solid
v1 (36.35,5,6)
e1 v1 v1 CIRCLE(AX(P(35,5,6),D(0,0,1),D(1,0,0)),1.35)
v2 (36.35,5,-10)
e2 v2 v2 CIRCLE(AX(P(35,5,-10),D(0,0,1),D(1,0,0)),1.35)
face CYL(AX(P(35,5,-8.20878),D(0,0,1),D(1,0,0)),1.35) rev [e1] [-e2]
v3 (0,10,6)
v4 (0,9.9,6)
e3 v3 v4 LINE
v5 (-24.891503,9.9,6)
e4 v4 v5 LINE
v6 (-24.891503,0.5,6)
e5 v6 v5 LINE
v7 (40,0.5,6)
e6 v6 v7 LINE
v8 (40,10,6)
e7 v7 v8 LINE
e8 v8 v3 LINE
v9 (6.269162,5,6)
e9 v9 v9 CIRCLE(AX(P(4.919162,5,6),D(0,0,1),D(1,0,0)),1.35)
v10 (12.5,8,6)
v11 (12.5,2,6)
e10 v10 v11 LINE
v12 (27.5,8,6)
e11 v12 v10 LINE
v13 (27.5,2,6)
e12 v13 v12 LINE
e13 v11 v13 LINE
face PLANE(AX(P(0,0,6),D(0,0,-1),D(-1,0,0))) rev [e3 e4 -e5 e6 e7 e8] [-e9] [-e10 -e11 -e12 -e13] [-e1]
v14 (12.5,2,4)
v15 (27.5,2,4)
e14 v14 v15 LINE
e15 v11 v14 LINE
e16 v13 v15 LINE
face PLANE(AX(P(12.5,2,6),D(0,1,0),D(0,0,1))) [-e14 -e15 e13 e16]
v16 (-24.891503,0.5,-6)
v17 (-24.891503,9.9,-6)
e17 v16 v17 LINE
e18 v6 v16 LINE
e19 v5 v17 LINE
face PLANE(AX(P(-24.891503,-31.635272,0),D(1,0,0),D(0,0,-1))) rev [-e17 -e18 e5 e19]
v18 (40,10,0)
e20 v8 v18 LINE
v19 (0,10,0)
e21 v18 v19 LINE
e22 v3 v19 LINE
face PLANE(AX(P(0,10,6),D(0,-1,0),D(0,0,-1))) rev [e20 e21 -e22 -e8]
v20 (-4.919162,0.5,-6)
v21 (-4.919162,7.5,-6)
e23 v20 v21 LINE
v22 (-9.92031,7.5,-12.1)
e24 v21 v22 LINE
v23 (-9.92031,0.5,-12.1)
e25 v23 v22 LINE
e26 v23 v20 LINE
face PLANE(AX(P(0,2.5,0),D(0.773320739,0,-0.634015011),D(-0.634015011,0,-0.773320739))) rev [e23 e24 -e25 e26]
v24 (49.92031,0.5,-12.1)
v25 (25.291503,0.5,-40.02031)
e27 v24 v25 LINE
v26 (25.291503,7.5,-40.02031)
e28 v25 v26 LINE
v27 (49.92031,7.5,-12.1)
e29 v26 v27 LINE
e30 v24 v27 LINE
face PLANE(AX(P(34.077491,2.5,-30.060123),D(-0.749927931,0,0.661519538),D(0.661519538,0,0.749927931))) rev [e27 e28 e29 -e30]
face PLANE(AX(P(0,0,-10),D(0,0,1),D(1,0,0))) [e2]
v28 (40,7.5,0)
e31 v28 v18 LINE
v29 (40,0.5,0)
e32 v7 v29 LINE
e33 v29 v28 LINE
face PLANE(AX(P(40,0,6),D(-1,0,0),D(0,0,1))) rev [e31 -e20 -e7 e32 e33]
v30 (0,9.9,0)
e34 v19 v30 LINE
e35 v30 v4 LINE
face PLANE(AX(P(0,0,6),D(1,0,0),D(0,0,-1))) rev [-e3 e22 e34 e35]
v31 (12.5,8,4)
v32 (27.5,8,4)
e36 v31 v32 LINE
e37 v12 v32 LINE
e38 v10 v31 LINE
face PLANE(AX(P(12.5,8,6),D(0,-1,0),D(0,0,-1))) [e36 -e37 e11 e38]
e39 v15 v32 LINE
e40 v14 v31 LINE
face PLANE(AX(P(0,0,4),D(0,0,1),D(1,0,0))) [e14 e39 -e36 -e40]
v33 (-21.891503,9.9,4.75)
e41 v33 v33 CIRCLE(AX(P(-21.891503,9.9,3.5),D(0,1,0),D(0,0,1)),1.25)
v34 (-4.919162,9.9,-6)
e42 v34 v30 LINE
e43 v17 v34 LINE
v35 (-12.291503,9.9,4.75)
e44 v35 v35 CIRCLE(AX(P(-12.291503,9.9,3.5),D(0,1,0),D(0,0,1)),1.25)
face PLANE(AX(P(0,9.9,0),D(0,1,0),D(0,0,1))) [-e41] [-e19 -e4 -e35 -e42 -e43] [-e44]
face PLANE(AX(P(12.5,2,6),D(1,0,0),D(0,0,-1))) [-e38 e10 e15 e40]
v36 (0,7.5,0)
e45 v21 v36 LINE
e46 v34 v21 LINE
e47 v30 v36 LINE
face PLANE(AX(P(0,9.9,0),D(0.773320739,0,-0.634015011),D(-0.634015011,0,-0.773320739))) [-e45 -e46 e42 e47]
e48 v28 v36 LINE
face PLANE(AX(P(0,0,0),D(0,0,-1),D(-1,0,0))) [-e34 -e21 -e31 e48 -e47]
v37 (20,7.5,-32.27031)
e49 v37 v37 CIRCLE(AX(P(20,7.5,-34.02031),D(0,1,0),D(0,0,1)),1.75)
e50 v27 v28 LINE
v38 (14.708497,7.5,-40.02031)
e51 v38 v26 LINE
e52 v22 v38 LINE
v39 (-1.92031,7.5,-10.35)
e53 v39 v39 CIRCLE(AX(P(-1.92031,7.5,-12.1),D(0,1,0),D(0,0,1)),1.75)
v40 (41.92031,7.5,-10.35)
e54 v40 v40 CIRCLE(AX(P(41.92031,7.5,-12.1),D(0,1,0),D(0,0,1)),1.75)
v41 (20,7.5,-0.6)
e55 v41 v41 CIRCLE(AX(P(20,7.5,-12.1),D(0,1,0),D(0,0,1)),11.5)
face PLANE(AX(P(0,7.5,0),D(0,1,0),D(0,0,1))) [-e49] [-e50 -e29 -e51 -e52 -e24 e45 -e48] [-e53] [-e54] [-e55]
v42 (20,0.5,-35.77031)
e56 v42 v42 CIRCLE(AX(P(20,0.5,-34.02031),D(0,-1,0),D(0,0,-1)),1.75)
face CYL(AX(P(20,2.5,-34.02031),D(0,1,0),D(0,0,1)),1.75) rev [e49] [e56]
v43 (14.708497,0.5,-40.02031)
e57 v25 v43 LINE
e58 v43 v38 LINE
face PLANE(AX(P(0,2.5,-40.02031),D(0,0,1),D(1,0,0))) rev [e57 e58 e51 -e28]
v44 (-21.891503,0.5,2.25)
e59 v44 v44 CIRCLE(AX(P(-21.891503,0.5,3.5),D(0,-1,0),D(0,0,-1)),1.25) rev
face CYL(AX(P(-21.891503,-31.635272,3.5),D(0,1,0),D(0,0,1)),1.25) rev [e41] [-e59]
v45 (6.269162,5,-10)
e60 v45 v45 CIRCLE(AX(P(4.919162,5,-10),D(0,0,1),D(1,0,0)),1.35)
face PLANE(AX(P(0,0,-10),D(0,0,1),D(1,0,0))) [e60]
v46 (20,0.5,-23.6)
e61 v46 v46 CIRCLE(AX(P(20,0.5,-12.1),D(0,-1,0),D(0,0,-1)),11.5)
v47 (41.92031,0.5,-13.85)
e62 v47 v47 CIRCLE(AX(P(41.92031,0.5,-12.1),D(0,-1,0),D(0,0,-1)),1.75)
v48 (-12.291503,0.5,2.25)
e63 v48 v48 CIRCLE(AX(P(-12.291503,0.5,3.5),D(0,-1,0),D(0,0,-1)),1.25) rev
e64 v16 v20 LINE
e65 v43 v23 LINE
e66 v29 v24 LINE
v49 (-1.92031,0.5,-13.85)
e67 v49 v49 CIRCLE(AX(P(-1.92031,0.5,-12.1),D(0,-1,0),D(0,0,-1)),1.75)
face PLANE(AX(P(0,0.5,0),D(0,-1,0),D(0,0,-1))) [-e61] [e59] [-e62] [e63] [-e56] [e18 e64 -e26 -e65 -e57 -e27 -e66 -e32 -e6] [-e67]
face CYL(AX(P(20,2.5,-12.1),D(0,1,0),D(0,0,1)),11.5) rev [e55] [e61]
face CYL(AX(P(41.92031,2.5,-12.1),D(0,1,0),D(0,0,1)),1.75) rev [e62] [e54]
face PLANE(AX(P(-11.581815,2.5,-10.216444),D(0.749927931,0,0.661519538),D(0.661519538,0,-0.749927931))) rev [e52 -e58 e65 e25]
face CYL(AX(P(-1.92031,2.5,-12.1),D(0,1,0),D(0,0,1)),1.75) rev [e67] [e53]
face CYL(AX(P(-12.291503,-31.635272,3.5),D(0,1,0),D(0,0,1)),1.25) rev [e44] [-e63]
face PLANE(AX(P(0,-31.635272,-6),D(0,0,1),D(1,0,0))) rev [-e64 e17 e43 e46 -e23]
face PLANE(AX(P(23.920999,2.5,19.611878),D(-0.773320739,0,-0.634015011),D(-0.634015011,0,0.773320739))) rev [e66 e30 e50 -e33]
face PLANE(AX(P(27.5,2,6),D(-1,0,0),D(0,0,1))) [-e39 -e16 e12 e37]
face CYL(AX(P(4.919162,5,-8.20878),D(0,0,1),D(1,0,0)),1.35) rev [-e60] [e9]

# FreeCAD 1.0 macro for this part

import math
import FreeCAD as App
import Part
import Sketcher

V = App.Vector


def add_polygon(sketch, points):
    """Adds a closed chain of lines whose ends are joined by coincident constraints."""
    first, n = sketch.GeometryCount, len(points)
    for a, b in zip(points, points[1:] + points[:1]):
        sketch.addGeometry(Part.LineSegment(App.Vector(*a, 0), App.Vector(*b, 0)), False)
    for i in range(n):
        sketch.addConstraint(Sketcher.Constraint("Coincident", first + i, 2, first + (i + 1) % n, 1))

doc = App.newDocument("Part")
body = doc.addObject("PartDesign::Body", "Body")

# Sketch on XY plane
sketch1 = doc.addObject("Sketcher::SketchObject", "Sketch")
body.addObject(sketch1)
sketch1.AttachmentSupport = (doc.XY_Plane, [""])
sketch1.MapMode = "FlatFace"
add_polygon(sketch1, [(0, 10), (0, 0), (40, 0), (40, 10)])  # lines 0-3
sketch1.addGeometry(Part.Circle(V(5, 5, 0), V(0, 0, 1), 1.5), False)  # 4
add_polygon(sketch1, [(27.5, 2), (12.5, 2), (12.5, 8), (27.5, 8)])  # lines 5-8
sketch1.addGeometry(Part.Circle(V(35, 5, 0), V(0, 0, 1), 1.5), False)  # 9
sketch1.addConstraint(Sketcher.Constraint("Vertical", 0))
sketch1.addConstraint(Sketcher.Constraint("Horizontal", 1))
sketch1.addConstraint(Sketcher.Constraint("Vertical", 2))
sketch1.addConstraint(Sketcher.Constraint("Horizontal", 3))
sketch1.addConstraint(Sketcher.Constraint("Horizontal", 5))
sketch1.addConstraint(Sketcher.Constraint("Vertical", 6))
sketch1.addConstraint(Sketcher.Constraint("Horizontal", 7))
sketch1.addConstraint(Sketcher.Constraint("Vertical", 8))
sketch1.addConstraint(Sketcher.Constraint("Coincident", 0, 2, -1, 1))
sketch1.addConstraint(Sketcher.Constraint("Equal", 4, 9))
sketch1.addConstraint(Sketcher.Constraint("Horizontal", 4, 3, 9, 3))
sketch1.addConstraint(Sketcher.Constraint("Diameter", 4, 3.0))
sketch1.addConstraint(Sketcher.Constraint("DistanceX", 1, 1, 1, 2, 40.0))
sketch1.addConstraint(Sketcher.Constraint("DistanceX", 5, 2, 5, 1, 15.0))
sketch1.addConstraint(Sketcher.Constraint("DistanceY", 0, 2, 0, 1, 10.0))
sketch1.addConstraint(Sketcher.Constraint("DistanceY", 6, 1, 6, 2, 6.0))
sketch1.addConstraint(Sketcher.Constraint("DistanceX", -1, 1, 4, 3, 5.0))
sketch1.addConstraint(Sketcher.Constraint("DistanceY", -1, 1, 4, 3, 5.0))
sketch1.addConstraint(Sketcher.Constraint("DistanceX", -1, 1, 9, 3, 35.0))
sketch1.addConstraint(Sketcher.Constraint("DistanceY", -1, 1, 5, 2, 2.0))
sketch1.addConstraint(Sketcher.Constraint("DistanceX", -1, 1, 5, 2, 12.5))
pad1 = doc.addObject("PartDesign::Pad", "Pad")
body.addObject(pad1)
pad1.Profile = sketch1
pad1.Length = 6

# Sketch on XY plane
sketch2 = doc.addObject("Sketcher::SketchObject", "Sketch001")
body.addObject(sketch2)
sketch2.AttachmentSupport = (doc.XY_Plane, [""])
sketch2.MapMode = "FlatFace"
add_polygon(sketch2, [(12.5, 8), (12.5, 2), (27.5, 2), (27.5, 8)])  # lines 0-3
sketch2.addConstraint(Sketcher.Constraint("Vertical", 0))
sketch2.addConstraint(Sketcher.Constraint("Horizontal", 1))
sketch2.addConstraint(Sketcher.Constraint("Vertical", 2))
sketch2.addConstraint(Sketcher.Constraint("Horizontal", 3))
sketch2.addConstraint(Sketcher.Constraint("DistanceX", 1, 1, 1, 2, 15.0))
sketch2.addConstraint(Sketcher.Constraint("DistanceY", 0, 2, 0, 1, 6.0))
sketch2.addConstraint(Sketcher.Constraint("DistanceY", -1, 1, 0, 2, 2.0))
sketch2.addConstraint(Sketcher.Constraint("DistanceX", -1, 1, 0, 2, 12.5))
pad2 = doc.addObject("PartDesign::Pad", "Pad001")
body.addObject(pad2)
pad2.Profile = sketch2
pad2.Length = 4

# Sketch on XZ plane
sketch3 = doc.addObject("Sketcher::SketchObject", "Sketch002")
body.addObject(sketch3)
sketch3.AttachmentSupport = (doc.XZ_Plane, [""])
sketch3.MapMode = "FlatFace"
sketch3.AttachmentOffset = App.Placement(V(0, 0, -7.5), App.Rotation())
add_polygon(sketch3, [(0, 0), (40, 0), (49.92031, -12.1), (25.291503, -40.02031), (14.708497, -40.02031), (-9.92031, -12.1)])  # lines 0-5
sketch3.addGeometry(Part.Circle(V(-1.92031, -12.1, 0), V(0, 0, 1), 1.75), False)  # 6
sketch3.addGeometry(Part.Circle(V(41.92031, -12.1, 0), V(0, 0, 1), 1.75), False)  # 7
sketch3.addGeometry(Part.Circle(V(20, -34.02031, 0), V(0, 0, 1), 1.75), False)  # 8
sketch3.addGeometry(Part.Circle(V(20, -12.1, 0), V(0, 0, 1), 11.5), False)  # 9
sketch3.addConstraint(Sketcher.Constraint("Horizontal", 0))
sketch3.addConstraint(Sketcher.Constraint("Horizontal", 3))
sketch3.addConstraint(Sketcher.Constraint("Coincident", 5, 2, -1, 1))
sketch3.addConstraint(Sketcher.Constraint("Equal", 6, 7))
sketch3.addConstraint(Sketcher.Constraint("Equal", 7, 8))
sketch3.addConstraint(Sketcher.Constraint("Horizontal", 6, 3, 7, 3))
sketch3.addConstraint(Sketcher.Constraint("Horizontal", 7, 3, 9, 3))
sketch3.addConstraint(Sketcher.Constraint("Horizontal", 9, 3, 1, 2))
sketch3.addConstraint(Sketcher.Constraint("Horizontal", 1, 2, 4, 2))
sketch3.addConstraint(Sketcher.Constraint("Vertical", 8, 3, 9, 3))
sketch3.addConstraint(Sketcher.Constraint("Equal", 2, 4))
sketch3.addConstraint(Sketcher.Constraint("Equal", 1, 5))
sketch3.addConstraint(Sketcher.Constraint("Diameter", 9, 23.0))
sketch3.addConstraint(Sketcher.Constraint("Diameter", 6, 3.5))
sketch3.addConstraint(Sketcher.Constraint("DistanceX", 0, 1, 0, 2, 40.0))
sketch3.addConstraint(Sketcher.Constraint("DistanceX", -1, 1, 8, 3, 20.0))
sketch3.addConstraint(Sketcher.Constraint("DistanceX", 7, 3, 1, 2, 8.0))
sketch3.addConstraint(Sketcher.Constraint("DistanceY", 2, 2, 8, 3, 6.0))
sketch3.addConstraint(Sketcher.Constraint("DistanceX", 4, 2, 6, 3, 8.0))
sketch3.addConstraint(Sketcher.Constraint("DistanceY", 6, 3, -1, 1, 12.1))
sketch3.addConstraint(Sketcher.Constraint("DistanceX", 3, 2, 3, 1, 10.583005))
sketch3.addConstraint(Sketcher.Constraint("DistanceX", 6, 3, -1, 1, 1.92031))
sketch3.addConstraint(Sketcher.Constraint("DistanceY", 8, 3, -1, 1, 34.02031))
pad3 = doc.addObject("PartDesign::Pad", "Pad002")
body.addObject(pad3)
pad3.Profile = sketch3
pad3.Length = 5

# Sketch on XZ plane
sketch4 = doc.addObject("Sketcher::SketchObject", "Sketch003")
body.addObject(sketch4)
sketch4.AttachmentSupport = (doc.XZ_Plane, [""])
sketch4.MapMode = "FlatFace"
add_polygon(sketch4, [(0, 0), (0, 6), (40, 6), (40, 0)])  # lines 0-3
sketch4.addConstraint(Sketcher.Constraint("Vertical", 0))
sketch4.addConstraint(Sketcher.Constraint("Horizontal", 1))
sketch4.addConstraint(Sketcher.Constraint("Vertical", 2))
sketch4.addConstraint(Sketcher.Constraint("Horizontal", 3))
sketch4.addConstraint(Sketcher.Constraint("Coincident", 3, 2, -1, 1))
sketch4.addConstraint(Sketcher.Constraint("DistanceX", 1, 1, 1, 2, 40.0))
sketch4.addConstraint(Sketcher.Constraint("DistanceY", 0, 1, 0, 2, 6.0))
pocket1 = doc.addObject("PartDesign::Pocket", "Pocket")
body.addObject(pocket1)
pocket1.Profile = sketch4
pocket1.Length = 0.5

# Sketch on XZ plane
sketch5 = doc.addObject("Sketcher::SketchObject", "Sketch004")
body.addObject(sketch5)
sketch5.AttachmentSupport = (doc.XZ_Plane, [""])
sketch5.MapMode = "FlatFace"
sketch5.AttachmentOffset = App.Placement(V(0, 0, -2.5), App.Rotation())
add_polygon(sketch5, [(0, 0), (40, 0), (49.92031, -12.1), (25.291503, -40.02031), (14.708497, -40.02031), (-9.92031, -12.1)])  # lines 0-5
sketch5.addGeometry(Part.Circle(V(-1.92031, -12.1, 0), V(0, 0, 1), 1.75), False)  # 6
sketch5.addGeometry(Part.Circle(V(41.92031, -12.1, 0), V(0, 0, 1), 1.75), False)  # 7
sketch5.addGeometry(Part.Circle(V(20, -34.02031, 0), V(0, 0, 1), 1.75), False)  # 8
sketch5.addGeometry(Part.Circle(V(20, -12.1, 0), V(0, 0, 1), 11.5), False)  # 9
sketch5.addConstraint(Sketcher.Constraint("Horizontal", 0))
sketch5.addConstraint(Sketcher.Constraint("Horizontal", 3))
sketch5.addConstraint(Sketcher.Constraint("Coincident", 5, 2, -1, 1))
sketch5.addConstraint(Sketcher.Constraint("Equal", 6, 7))
sketch5.addConstraint(Sketcher.Constraint("Equal", 7, 8))
sketch5.addConstraint(Sketcher.Constraint("Horizontal", 6, 3, 7, 3))
sketch5.addConstraint(Sketcher.Constraint("Horizontal", 7, 3, 9, 3))
sketch5.addConstraint(Sketcher.Constraint("Horizontal", 9, 3, 1, 2))
sketch5.addConstraint(Sketcher.Constraint("Horizontal", 1, 2, 4, 2))
sketch5.addConstraint(Sketcher.Constraint("Vertical", 8, 3, 9, 3))
sketch5.addConstraint(Sketcher.Constraint("Equal", 2, 4))
sketch5.addConstraint(Sketcher.Constraint("Equal", 1, 5))
sketch5.addConstraint(Sketcher.Constraint("Diameter", 9, 23.0))
sketch5.addConstraint(Sketcher.Constraint("Diameter", 6, 3.5))
sketch5.addConstraint(Sketcher.Constraint("DistanceX", 0, 1, 0, 2, 40.0))
sketch5.addConstraint(Sketcher.Constraint("DistanceX", -1, 1, 8, 3, 20.0))
sketch5.addConstraint(Sketcher.Constraint("DistanceX", 7, 3, 1, 2, 8.0))
sketch5.addConstraint(Sketcher.Constraint("DistanceY", 2, 2, 8, 3, 6.0))
sketch5.addConstraint(Sketcher.Constraint("DistanceX", 4, 2, 6, 3, 8.0))
sketch5.addConstraint(Sketcher.Constraint("DistanceY", 6, 3, -1, 1, 12.1))
sketch5.addConstraint(Sketcher.Constraint("DistanceX", 3, 2, 3, 1, 10.583005))
sketch5.addConstraint(Sketcher.Constraint("DistanceX", 6, 3, -1, 1, 1.92031))
sketch5.addConstraint(Sketcher.Constraint("DistanceY", 8, 3, -1, 1, 34.02031))
pad4 = doc.addObject("PartDesign::Pad", "Pad003")
body.addObject(pad4)
pad4.Profile = sketch5
pad4.Length = 2

# Sketch on XZ plane
sketch6 = doc.addObject("Sketcher::SketchObject", "Sketch005")
body.addObject(sketch6)
sketch6.AttachmentSupport = (doc.XZ_Plane, [""])
sketch6.MapMode = "FlatFace"
sketch6.AttachmentOffset = App.Placement(V(0, 0, -7.5), App.Rotation())
add_polygon(sketch6, [(-24.891503, -6), (-24.891503, 6), (4.919162, 6), (-4.919162, -6)])  # lines 0-3
sketch6.addGeometry(Part.Circle(V(-12.291503, 3.5, 0), V(0, 0, 1), 1.25), False)  # 4
sketch6.addGeometry(Part.Circle(V(-21.891503, 3.5, 0), V(0, 0, 1), 1.25), False)  # 5
sketch6.addConstraint(Sketcher.Constraint("Vertical", 0))
sketch6.addConstraint(Sketcher.Constraint("Horizontal", 1))
sketch6.addConstraint(Sketcher.Constraint("Horizontal", 3))
sketch6.addConstraint(Sketcher.Constraint("Equal", 4, 5))
sketch6.addConstraint(Sketcher.Constraint("Symmetric", 1, 2, 2, 2, -1, 1))
sketch6.addConstraint(Sketcher.Constraint("Horizontal", 4, 3, 5, 3))
sketch6.addConstraint(Sketcher.Constraint("Diameter", 4, 2.5))
sketch6.addConstraint(Sketcher.Constraint("DistanceY", 0, 1, 0, 2, 12.0))
sketch6.addConstraint(Sketcher.Constraint("DistanceX", 0, 2, 5, 3, 3.0))
sketch6.addConstraint(Sketcher.Constraint("DistanceY", -1, 1, 4, 3, 3.5))
sketch6.addConstraint(Sketcher.Constraint("DistanceX", 5, 3, 4, 3, 9.6))
sketch6.addConstraint(Sketcher.Constraint("DistanceX", 3, 2, 3, 1, 19.972341))
sketch6.addConstraint(Sketcher.Constraint("DistanceX", 1, 1, 1, 2, 29.810665))
pad5 = doc.addObject("PartDesign::Pad", "Pad004")
body.addObject(pad5)
pad5.Profile = sketch6
pad5.Length = 7

# Sketch on XZ plane
sketch7 = doc.addObject("Sketcher::SketchObject", "Sketch006")
body.addObject(sketch7)
sketch7.AttachmentSupport = (doc.XZ_Plane, [""])
sketch7.MapMode = "FlatFace"
sketch7.AttachmentOffset = App.Placement(V(0, 0, -9.9), App.Rotation())
add_polygon(sketch7, [(-24.891503, -6), (-24.891503, 6), (4.919162, 6), (-4.919162, -6)])  # lines 0-3
sketch7.addGeometry(Part.Circle(V(-21.891503, 3.5, 0), V(0, 0, 1), 1.25), False)  # 4
sketch7.addGeometry(Part.Circle(V(-12.291503, 3.5, 0), V(0, 0, 1), 1.25), False)  # 5
sketch7.addConstraint(Sketcher.Constraint("Vertical", 0))
sketch7.addConstraint(Sketcher.Constraint("Horizontal", 1))
sketch7.addConstraint(Sketcher.Constraint("Horizontal", 3))
sketch7.addConstraint(Sketcher.Constraint("Equal", 4, 5))
sketch7.addConstraint(Sketcher.Constraint("Symmetric", 1, 2, 2, 2, -1, 1))
sketch7.addConstraint(Sketcher.Constraint("Horizontal", 4, 3, 5, 3))
sketch7.addConstraint(Sketcher.Constraint("Diameter", 4, 2.5))
sketch7.addConstraint(Sketcher.Constraint("DistanceY", 0, 1, 0, 2, 12.0))
sketch7.addConstraint(Sketcher.Constraint("DistanceX", 0, 2, 4, 3, 3.0))
sketch7.addConstraint(Sketcher.Constraint("DistanceY", -1, 1, 4, 3, 3.5))
sketch7.addConstraint(Sketcher.Constraint("DistanceX", 4, 3, 5, 3, 9.6))
sketch7.addConstraint(Sketcher.Constraint("DistanceX", 3, 2, 3, 1, 19.972341))
sketch7.addConstraint(Sketcher.Constraint("DistanceX", 1, 1, 1, 2, 29.810665))
pad6 = doc.addObject("PartDesign::Pad", "Pad005")
body.addObject(pad6)
pad6.Profile = sketch7
pad6.Length = 2.4

# Sketch on XY plane
sketch8 = doc.addObject("Sketcher::SketchObject", "Sketch007")
body.addObject(sketch8)
sketch8.AttachmentSupport = (doc.XY_Plane, [""])
sketch8.MapMode = "FlatFace"
sketch8.AttachmentOffset = App.Placement(V(0, 0, 6), App.Rotation())
sketch8.addGeometry(Part.Circle(V(4.919162, 5, 0), V(0, 0, 1), 2.902242), False)
sketch8.addGeometry(Part.Circle(V(4.919162, 5, 0), V(0, 0, 1), 1.35), False)
sketch8.addGeometry(Part.Circle(V(35, 5, 0), V(0, 0, 1), 2.755763), False)
sketch8.addGeometry(Part.Circle(V(35, 5, 0), V(0, 0, 1), 1.35), False)
sketch8.addConstraint(Sketcher.Constraint("Coincident", 1, 3, 0, 3))
sketch8.addConstraint(Sketcher.Constraint("Coincident", 3, 3, 2, 3))
sketch8.addConstraint(Sketcher.Constraint("Equal", 1, 3))
sketch8.addConstraint(Sketcher.Constraint("Horizontal", 1, 3, 2, 3))
sketch8.addConstraint(Sketcher.Constraint("Diameter", 1, 2.7))
sketch8.addConstraint(Sketcher.Constraint("DistanceY", -1, 1, 0, 3, 5.0))
sketch8.addConstraint(Sketcher.Constraint("DistanceX", -1, 1, 2, 3, 35.0))
sketch8.addConstraint(Sketcher.Constraint("Diameter", 0, 5.804484))
sketch8.addConstraint(Sketcher.Constraint("Diameter", 2, 5.511525))
sketch8.addConstraint(Sketcher.Constraint("DistanceX", -1, 1, 0, 3, 4.919162))
pad7 = doc.addObject("PartDesign::Pad", "Pad006")
body.addObject(pad7)
pad7.Profile = sketch8
pad7.Length = 6
pad7.Reversed = True

# Sketch on XY plane
sketch9 = doc.addObject("Sketcher::SketchObject", "Sketch008")
body.addObject(sketch9)
sketch9.AttachmentSupport = (doc.XY_Plane, [""])
sketch9.MapMode = "FlatFace"
sketch9.AttachmentOffset = App.Placement(V(0, 0, 6), App.Rotation())
sketch9.addGeometry(Part.ArcOfCircle(Part.Circle(V(4.919162, 5, 0), V(0, 0, 1), 1.35), math.radians(-90), math.radians(0)), False)
sketch9.addGeometry(Part.ArcOfCircle(Part.Circle(V(4.919162, 5, 0), V(0, 0, 1), 1.35), math.radians(0), math.radians(90)), False)
sketch9.addGeometry(Part.ArcOfCircle(Part.Circle(V(4.919162, 5, 0), V(0, 0, 1), 1.35), math.radians(90), math.radians(270)), False)
sketch9.addGeometry(Part.Circle(V(35, 5, 0), V(0, 0, 1), 1.35), False)
sketch9.addConstraint(Sketcher.Constraint("Tangent", 0, 2, 1, 1))
sketch9.addConstraint(Sketcher.Constraint("Tangent", 1, 2, 2, 1))
sketch9.addConstraint(Sketcher.Constraint("Tangent", 2, 2, 0, 1))
sketch9.addConstraint(Sketcher.Constraint("Equal", 2, 3))
sketch9.addConstraint(Sketcher.Constraint("Horizontal", 2, 3, 3, 3))
sketch9.addConstraint(Sketcher.Constraint("Horizontal", 3, 3, 0, 2))
sketch9.addConstraint(Sketcher.Constraint("Vertical", 2, 3, 1, 2))
sketch9.addConstraint(Sketcher.Constraint("Vertical", 1, 2, 2, 2))
sketch9.addConstraint(Sketcher.Constraint("Diameter", 3, 2.7))
sketch9.addConstraint(Sketcher.Constraint("DistanceY", -1, 1, 0, 3, 5.0))
sketch9.addConstraint(Sketcher.Constraint("DistanceX", -1, 1, 3, 3, 35.0))
sketch9.addConstraint(Sketcher.Constraint("DistanceX", -1, 1, 0, 3, 4.919162))
pocket2 = doc.addObject("PartDesign::Pocket", "Pocket001")
body.addObject(pocket2)
pocket2.Profile = sketch9
pocket2.Type = "TwoLengths"
pocket2.Length = 69.628757
pocket2.Length2 = 16
pocket2.Reversed = True

doc.recompute()
